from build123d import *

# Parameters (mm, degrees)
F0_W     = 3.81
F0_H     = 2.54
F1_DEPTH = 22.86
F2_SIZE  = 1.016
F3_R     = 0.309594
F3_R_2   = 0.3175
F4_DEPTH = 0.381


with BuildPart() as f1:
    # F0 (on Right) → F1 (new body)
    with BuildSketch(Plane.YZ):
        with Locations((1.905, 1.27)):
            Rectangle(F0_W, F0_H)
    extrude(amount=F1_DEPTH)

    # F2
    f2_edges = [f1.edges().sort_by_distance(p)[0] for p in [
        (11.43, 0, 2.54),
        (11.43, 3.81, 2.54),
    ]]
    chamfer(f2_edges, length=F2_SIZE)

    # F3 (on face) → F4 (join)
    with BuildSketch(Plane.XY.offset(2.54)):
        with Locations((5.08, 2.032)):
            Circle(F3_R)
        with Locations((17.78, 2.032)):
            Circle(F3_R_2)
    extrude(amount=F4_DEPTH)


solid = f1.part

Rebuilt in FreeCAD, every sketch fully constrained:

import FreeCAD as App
import Part
import Sketcher

V = App.Vector
Q = App.Units.Quantity


def edges_at(feature, points):
    """Names of the edges that pass closest to the given points."""
    edges = feature.Shape.Edges
    near = lambda p: min(range(len(edges)), key=lambda i: edges[i].distToShape(Part.Vertex(*p))[0])
    return sorted({f"Edge{near(p) + 1}" for p in points})


def add_polygon(sketch, points):
    """Adds a closed chain of lines whose ends are joined by coincident constraints."""
    first, n = sketch.GeometryCount, len(points)
    for a, b in zip(points, points[1:] + points[:1]):
        sketch.addGeometry(Part.LineSegment(App.Vector(*a, 0), App.Vector(*b, 0)), False)
    for i in range(n):
        sketch.addConstraint(Sketcher.Constraint("Coincident", first + i, 2, first + (i + 1) % n, 1))

doc = App.newDocument("Part")
body = doc.addObject("PartDesign::Body", "Body")

sketch1 = doc.addObject("Sketcher::SketchObject", "Sketch")
body.addObject(sketch1)
sketch1.AttachmentSupport = (doc.YZ_Plane, [""])
sketch1.MapMode = "FlatFace"
add_polygon(sketch1, [(0, 2.5), (0, 0), (3.8, 0), (3.8, 2.5)])
sketch1.addConstraint(Sketcher.Constraint("Vertical", 0))
sketch1.addConstraint(Sketcher.Constraint("Horizontal", 1))
sketch1.addConstraint(Sketcher.Constraint("Vertical", 2))
sketch1.addConstraint(Sketcher.Constraint("Horizontal", 3))
sketch1.addConstraint(Sketcher.Constraint("Coincident", 0, 2, -1, 1))
sketch1.addConstraint(Sketcher.Constraint("DistanceY", 0, 2, 0, 1, Q("0.1 in")))
sketch1.addConstraint(Sketcher.Constraint("DistanceX", 1, 1, 1, 2, Q("0.15 in")))
pad1 = doc.addObject("PartDesign::Pad", "Pad")
body.addObject(pad1)
pad1.Profile = sketch1
pad1.Length = Q("0.9 in")
doc.recompute()

chamfer = doc.addObject("PartDesign::Chamfer", "Chamfer")
body.addObject(chamfer)
chamfer.Base = (pad1, edges_at(pad1, [(11.43, 0, 2.54), (11.43, 3.81, 2.54)]))
chamfer.Size = Q("0.04 in")

sketch2 = doc.addObject("Sketcher::SketchObject", "Sketch001")
body.addObject(sketch2)
sketch2.AttachmentSupport = (doc.XY_Plane, [""])
sketch2.MapMode = "FlatFace"
sketch2.AttachmentOffset = App.Placement(V(0, 0, 0.1 * 25.4), App.Rotation())
sketch2.addGeometry(Part.Circle(V(5.08, 2.03, 0), V(0, 0, 1), 0.31), False)
sketch2.addGeometry(Part.Circle(V(17.78, 2.03, 0), V(0, 0, 1), 0.32), False)
sketch2.addConstraint(Sketcher.Constraint("Horizontal", 0, 3, 1, 3))
sketch2.addConstraint(Sketcher.Constraint("Diameter", 1, Q("0.025 in")))
sketch2.addConstraint(Sketcher.Constraint("DistanceX", -1, 1, 0, 3, Q("0.2 in")))
sketch2.addConstraint(Sketcher.Constraint("DistanceX", -1, 1, 1, 3, Q("0.7 in")))
sketch2.addConstraint(Sketcher.Constraint("DistanceY", -1, 1, 0, 3, Q("0.08 in")))
sketch2.addConstraint(Sketcher.Constraint("Diameter", 0, Q("0.619188 mm")))
pad2 = doc.addObject("PartDesign::Pad", "Pad001")
body.addObject(pad2)
pad2.Profile = sketch2
pad2.Length = Q("0.015 in")

doc.recompute()
